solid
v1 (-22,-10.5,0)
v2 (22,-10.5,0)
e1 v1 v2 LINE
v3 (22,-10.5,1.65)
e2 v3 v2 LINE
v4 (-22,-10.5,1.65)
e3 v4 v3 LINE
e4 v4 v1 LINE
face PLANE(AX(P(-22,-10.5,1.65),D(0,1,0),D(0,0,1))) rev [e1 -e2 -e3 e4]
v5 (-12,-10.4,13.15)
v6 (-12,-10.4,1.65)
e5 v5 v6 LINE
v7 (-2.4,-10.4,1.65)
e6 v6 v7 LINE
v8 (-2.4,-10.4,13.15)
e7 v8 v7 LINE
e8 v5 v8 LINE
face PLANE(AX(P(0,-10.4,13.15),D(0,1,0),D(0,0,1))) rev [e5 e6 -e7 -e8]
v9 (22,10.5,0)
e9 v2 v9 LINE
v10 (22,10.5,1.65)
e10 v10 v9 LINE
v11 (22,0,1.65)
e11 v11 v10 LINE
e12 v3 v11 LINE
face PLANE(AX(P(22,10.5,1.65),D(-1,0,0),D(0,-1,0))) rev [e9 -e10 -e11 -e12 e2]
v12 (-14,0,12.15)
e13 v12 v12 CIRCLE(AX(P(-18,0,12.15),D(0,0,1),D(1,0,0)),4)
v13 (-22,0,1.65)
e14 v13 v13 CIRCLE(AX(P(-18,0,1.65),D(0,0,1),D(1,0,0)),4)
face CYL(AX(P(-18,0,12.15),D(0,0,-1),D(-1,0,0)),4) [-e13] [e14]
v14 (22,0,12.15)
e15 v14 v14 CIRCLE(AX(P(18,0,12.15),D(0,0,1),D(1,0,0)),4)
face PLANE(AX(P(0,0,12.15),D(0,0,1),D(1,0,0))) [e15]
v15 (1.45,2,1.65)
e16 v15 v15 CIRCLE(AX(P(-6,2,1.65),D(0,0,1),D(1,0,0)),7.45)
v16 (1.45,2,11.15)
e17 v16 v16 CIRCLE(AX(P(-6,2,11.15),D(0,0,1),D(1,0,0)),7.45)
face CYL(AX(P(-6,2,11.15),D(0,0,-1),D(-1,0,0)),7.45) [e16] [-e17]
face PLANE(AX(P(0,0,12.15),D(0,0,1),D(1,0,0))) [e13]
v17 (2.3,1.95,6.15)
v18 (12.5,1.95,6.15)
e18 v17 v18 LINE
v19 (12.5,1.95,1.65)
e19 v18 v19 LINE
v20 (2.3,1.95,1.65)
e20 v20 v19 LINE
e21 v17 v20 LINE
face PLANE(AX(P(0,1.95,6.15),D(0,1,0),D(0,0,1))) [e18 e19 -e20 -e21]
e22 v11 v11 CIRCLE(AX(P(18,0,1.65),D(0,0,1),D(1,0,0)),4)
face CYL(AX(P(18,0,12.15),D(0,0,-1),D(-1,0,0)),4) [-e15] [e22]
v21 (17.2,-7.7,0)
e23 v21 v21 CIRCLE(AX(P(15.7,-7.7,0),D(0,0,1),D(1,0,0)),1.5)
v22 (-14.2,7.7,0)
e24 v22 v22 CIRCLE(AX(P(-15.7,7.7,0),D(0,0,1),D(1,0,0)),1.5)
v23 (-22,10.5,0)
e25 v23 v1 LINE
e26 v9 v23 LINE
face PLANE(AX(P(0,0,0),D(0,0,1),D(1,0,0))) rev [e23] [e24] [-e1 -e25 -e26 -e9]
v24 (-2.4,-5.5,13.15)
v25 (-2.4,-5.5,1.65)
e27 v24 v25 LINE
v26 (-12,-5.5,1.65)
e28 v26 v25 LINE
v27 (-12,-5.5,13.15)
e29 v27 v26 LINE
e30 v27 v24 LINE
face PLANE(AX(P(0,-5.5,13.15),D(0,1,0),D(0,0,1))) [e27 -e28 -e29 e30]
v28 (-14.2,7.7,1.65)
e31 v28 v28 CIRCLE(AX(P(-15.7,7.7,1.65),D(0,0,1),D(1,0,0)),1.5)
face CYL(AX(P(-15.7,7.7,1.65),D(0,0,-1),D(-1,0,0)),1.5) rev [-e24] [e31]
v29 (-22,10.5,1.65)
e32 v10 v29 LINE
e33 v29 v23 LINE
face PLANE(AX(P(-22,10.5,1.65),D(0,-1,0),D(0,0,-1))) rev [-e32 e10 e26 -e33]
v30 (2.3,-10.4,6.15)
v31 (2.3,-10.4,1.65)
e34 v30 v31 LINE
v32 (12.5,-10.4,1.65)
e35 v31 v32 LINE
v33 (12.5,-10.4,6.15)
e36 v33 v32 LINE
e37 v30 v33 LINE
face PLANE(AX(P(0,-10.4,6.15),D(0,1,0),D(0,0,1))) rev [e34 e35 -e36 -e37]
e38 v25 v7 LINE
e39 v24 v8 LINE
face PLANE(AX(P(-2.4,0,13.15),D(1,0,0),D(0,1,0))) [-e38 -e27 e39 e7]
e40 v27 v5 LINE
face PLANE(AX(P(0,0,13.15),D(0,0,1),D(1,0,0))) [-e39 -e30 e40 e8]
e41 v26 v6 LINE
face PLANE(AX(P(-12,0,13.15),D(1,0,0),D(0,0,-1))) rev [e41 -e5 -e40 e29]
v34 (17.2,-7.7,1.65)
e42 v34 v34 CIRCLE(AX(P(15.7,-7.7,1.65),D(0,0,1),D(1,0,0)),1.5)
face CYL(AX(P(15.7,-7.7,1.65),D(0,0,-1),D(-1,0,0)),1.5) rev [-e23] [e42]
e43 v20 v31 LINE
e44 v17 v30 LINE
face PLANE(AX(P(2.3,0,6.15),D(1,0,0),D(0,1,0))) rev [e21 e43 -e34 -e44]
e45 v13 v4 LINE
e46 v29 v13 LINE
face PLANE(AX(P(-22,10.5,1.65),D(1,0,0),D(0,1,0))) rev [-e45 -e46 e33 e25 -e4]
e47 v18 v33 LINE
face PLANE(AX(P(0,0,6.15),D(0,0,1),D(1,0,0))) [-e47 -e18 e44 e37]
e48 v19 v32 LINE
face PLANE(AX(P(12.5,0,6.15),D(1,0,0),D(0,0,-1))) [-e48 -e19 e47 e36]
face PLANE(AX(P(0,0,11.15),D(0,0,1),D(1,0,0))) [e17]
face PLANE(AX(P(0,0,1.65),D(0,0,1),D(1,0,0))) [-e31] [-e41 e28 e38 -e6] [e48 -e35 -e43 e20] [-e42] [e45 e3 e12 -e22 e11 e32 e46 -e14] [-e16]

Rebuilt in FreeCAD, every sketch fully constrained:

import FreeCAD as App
import Part
import Sketcher

doc = App.newDocument("Part")
body = doc.addObject("PartDesign::Body", "Body")

sketch1 = doc.addObject("Sketcher::SketchObject", "Sketch")
body.addObject(sketch1)
sketch1.AttachmentSupport = (doc.XY_Plane, [""])
sketch1.MapMode = "FlatFace"
sketch1.addGeometry(Part.LineSegment(App.Vector(-22, 10.5, 0), App.Vector(-22, -10.5, 0)), False)
sketch1.addGeometry(Part.LineSegment(App.Vector(-22, -10.5, 0), App.Vector(22, -10.5, 0)), False)
sketch1.addGeometry(Part.LineSegment(App.Vector(22, -10.5, 0), App.Vector(22, 10.5, 0)), False)
sketch1.addGeometry(Part.LineSegment(App.Vector(22, 10.5, 0), App.Vector(-22, 10.5, 0)), False)
sketch1.addGeometry(Part.Circle(App.Vector(15.7, -7.7, 0), App.Vector(0, 0, 1), 1.5), False)
sketch1.addGeometry(Part.Circle(App.Vector(-15.7, 7.7, 0), App.Vector(0, 0, 1), 1.5), False)
sketch1.addConstraint(Sketcher.Constraint("Coincident", 0, 2, 1, 1))
sketch1.addConstraint(Sketcher.Constraint("Coincident", 1, 2, 2, 1))
sketch1.addConstraint(Sketcher.Constraint("Coincident", 2, 2, 3, 1))
sketch1.addConstraint(Sketcher.Constraint("Coincident", 3, 2, 0, 1))
sketch1.addConstraint(Sketcher.Constraint("Vertical", 0))
sketch1.addConstraint(Sketcher.Constraint("Horizontal", 1))
sketch1.addConstraint(Sketcher.Constraint("Vertical", 2))
sketch1.addConstraint(Sketcher.Constraint("Horizontal", 3))
sketch1.addConstraint(Sketcher.Constraint("Equal", 4, 5))
sketch1.addConstraint(Sketcher.Constraint("Symmetric", 4, 3, 5, 3, -1, 1))
sketch1.addConstraint(Sketcher.Constraint("Symmetric", 0, 2, 2, 2, -1, 1))
sketch1.addConstraint(Sketcher.Constraint("Diameter", 4, 3.0))
sketch1.addConstraint(Sketcher.Constraint("DistanceX", 1, 1, 1, 2, 44.0))
sketch1.addConstraint(Sketcher.Constraint("DistanceY", 0, 2, 0, 1, 21.0))
sketch1.addConstraint(Sketcher.Constraint("DistanceX", -1, 1, 4, 3, 15.7))
sketch1.addConstraint(Sketcher.Constraint("DistanceY", 4, 3, -1, 1, 7.7))
pad1 = doc.addObject("PartDesign::Pad", "Pad")
body.addObject(pad1)
pad1.Profile = sketch1
pad1.Length = 1.65

sketch2 = doc.addObject("Sketcher::SketchObject", "Sketch001")
body.addObject(sketch2)
sketch2.AttachmentSupport = (doc.XY_Plane, [""])
sketch2.MapMode = "FlatFace"
sketch2.AttachmentOffset = App.Placement(App.Vector(0, 0, 1.65), App.Rotation())
sketch2.addGeometry(Part.Circle(App.Vector(-18, 0, 0), App.Vector(0, 0, 1), 4), False)
sketch2.addGeometry(Part.Circle(App.Vector(18, 0, 0), App.Vector(0, 0, 1), 4), False)
sketch2.addConstraint(Sketcher.Constraint("Equal", 0, 1))
sketch2.addConstraint(Sketcher.Constraint("Symmetric", 0, 3, 1, 3, -1, 1))
sketch2.addConstraint(Sketcher.Constraint("PointOnObject", 0, 3, -1))
sketch2.addConstraint(Sketcher.Constraint("Diameter", 0, 8.0))
sketch2.addConstraint(Sketcher.Constraint("DistanceX", 0, 3, -1, 1, 18.0))
pad2 = doc.addObject("PartDesign::Pad", "Pad001")
body.addObject(pad2)
pad2.Profile = sketch2
pad2.Length = 10.5

sketch3 = doc.addObject("Sketcher::SketchObject", "Sketch002")
body.addObject(sketch3)
sketch3.AttachmentSupport = (doc.XY_Plane, [""])
sketch3.MapMode = "FlatFace"
sketch3.AttachmentOffset = App.Placement(App.Vector(0, 0, 1.65), App.Rotation())
sketch3.addGeometry(Part.LineSegment(App.Vector(-12, -5.5, 0), App.Vector(-12, -10.4, 0)), False)
sketch3.addGeometry(Part.LineSegment(App.Vector(-12, -10.4, 0), App.Vector(-2.4, -10.4, 0)), False)
sketch3.addGeometry(Part.LineSegment(App.Vector(-2.4, -10.4, 0), App.Vector(-2.4, -5.5, 0)), False)
sketch3.addGeometry(Part.LineSegment(App.Vector(-2.4, -5.5, 0), App.Vector(-12, -5.5, 0)), False)
sketch3.addConstraint(Sketcher.Constraint("Coincident", 0, 2, 1, 1))
sketch3.addConstraint(Sketcher.Constraint("Coincident", 1, 2, 2, 1))
sketch3.addConstraint(Sketcher.Constraint("Coincident", 2, 2, 3, 1))
sketch3.addConstraint(Sketcher.Constraint("Coincident", 3, 2, 0, 1))
sketch3.addConstraint(Sketcher.Constraint("Vertical", 0))
sketch3.addConstraint(Sketcher.Constraint("Horizontal", 1))
sketch3.addConstraint(Sketcher.Constraint("Vertical", 2))
sketch3.addConstraint(Sketcher.Constraint("Horizontal", 3))
sketch3.addConstraint(Sketcher.Constraint("DistanceX", 1, 1, 1, 2, 9.6))
sketch3.addConstraint(Sketcher.Constraint("DistanceY", 0, 2, 0, 1, 4.9))
sketch3.addConstraint(Sketcher.Constraint("DistanceX", 0, 2, -1, 1, 12.0))
sketch3.addConstraint(Sketcher.Constraint("DistanceY", 0, 2, -1, 1, 10.4))
pad3 = doc.addObject("PartDesign::Pad", "Pad002")
body.addObject(pad3)
pad3.Profile = sketch3
pad3.Length = 11.5

sketch4 = doc.addObject("Sketcher::SketchObject", "Sketch003")
body.addObject(sketch4)
sketch4.AttachmentSupport = (doc.XY_Plane, [""])
sketch4.MapMode = "FlatFace"
sketch4.AttachmentOffset = App.Placement(App.Vector(0, 0, 1.65), App.Rotation())
sketch4.addGeometry(Part.Circle(App.Vector(-6, 2, 0), App.Vector(0, 0, 1), 7), False)
sketch4.addConstraint(Sketcher.Constraint("Diameter", 0, 14.9))
sketch4.addConstraint(Sketcher.Constraint("DistanceX", 0, 3, -1, 1, 6.0))
sketch4.addConstraint(Sketcher.Constraint("DistanceY", -1, 1, 0, 3, 2.0))
pad4 = doc.addObject("PartDesign::Pad", "Pad003")
body.addObject(pad4)
pad4.Profile = sketch4
pad4.Length = 9.5

sketch5 = doc.addObject("Sketcher::SketchObject", "Sketch004")
body.addObject(sketch5)
sketch5.AttachmentSupport = (doc.XY_Plane, [""])
sketch5.MapMode = "FlatFace"
sketch5.AttachmentOffset = App.Placement(App.Vector(0, 0, 1.65), App.Rotation())
sketch5.addGeometry(Part.LineSegment(App.Vector(2, 2, 0), App.Vector(2, -10, 0)), False)
sketch5.addGeometry(Part.LineSegment(App.Vector(2, -10, 0), App.Vector(12, -10, 0)), False)
sketch5.addGeometry(Part.LineSegment(App.Vector(12, -10, 0), App.Vector(12, 2, 0)), False)
sketch5.addGeometry(Part.LineSegment(App.Vector(12, 2, 0), App.Vector(2, 2, 0)), False)
sketch5.addConstraint(Sketcher.Constraint("Coincident", 0, 2, 1, 1))
sketch5.addConstraint(Sketcher.Constraint("Coincident", 1, 2, 2, 1))
sketch5.addConstraint(Sketcher.Constraint("Coincident", 2, 2, 3, 1))
sketch5.addConstraint(Sketcher.Constraint("Coincident", 3, 2, 0, 1))
sketch5.addConstraint(Sketcher.Constraint("Vertical", 0))
sketch5.addConstraint(Sketcher.Constraint("Horizontal", 1))
sketch5.addConstraint(Sketcher.Constraint("Vertical", 2))
sketch5.addConstraint(Sketcher.Constraint("Horizontal", 3))
sketch5.addConstraint(Sketcher.Constraint("DistanceX", 1, 1, 1, 2, 10.2))
sketch5.addConstraint(Sketcher.Constraint("DistanceY", 0, 2, 0, 1, 12.35))
sketch5.addConstraint(Sketcher.Constraint("DistanceX", -1, 1, 0, 2, 2.3))
sketch5.addConstraint(Sketcher.Constraint("DistanceY", 0, 2, -1, 1, 10.4))
pad5 = doc.addObject("PartDesign::Pad", "Pad004")
body.addObject(pad5)
pad5.Profile = sketch5
pad5.Length = 4.5

doc.recompute()
